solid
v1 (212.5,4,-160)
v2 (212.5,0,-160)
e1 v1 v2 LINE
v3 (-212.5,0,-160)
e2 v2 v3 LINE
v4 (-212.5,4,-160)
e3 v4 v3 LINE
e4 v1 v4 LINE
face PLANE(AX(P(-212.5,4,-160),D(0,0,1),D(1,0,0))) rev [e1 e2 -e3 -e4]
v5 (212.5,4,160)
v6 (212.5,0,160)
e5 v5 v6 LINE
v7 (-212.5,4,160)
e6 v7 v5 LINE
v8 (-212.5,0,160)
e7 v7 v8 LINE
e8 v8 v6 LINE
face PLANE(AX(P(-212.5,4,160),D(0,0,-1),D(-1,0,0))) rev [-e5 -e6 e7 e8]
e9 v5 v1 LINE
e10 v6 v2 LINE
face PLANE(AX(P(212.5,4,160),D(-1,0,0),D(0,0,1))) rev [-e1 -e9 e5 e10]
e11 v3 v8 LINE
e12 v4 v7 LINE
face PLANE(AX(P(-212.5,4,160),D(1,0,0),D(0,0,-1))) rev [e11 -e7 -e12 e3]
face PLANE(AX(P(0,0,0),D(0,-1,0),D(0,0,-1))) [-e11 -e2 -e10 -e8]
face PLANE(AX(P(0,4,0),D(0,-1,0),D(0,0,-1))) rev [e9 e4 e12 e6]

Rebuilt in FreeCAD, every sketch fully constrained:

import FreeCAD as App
import Part
import Sketcher

V = App.Vector
Q = App.Units.Quantity

doc = App.newDocument("Part")
body = doc.addObject("PartDesign::Body", "Body")

# Sketch on XZ plane
sketch1 = body.newObject("Sketcher::SketchObject", "Sketch")
sketch1.AttachmentSupport = (doc.getObject("XZ_Plane"), [""])
sketch1.MapMode = "FlatFace"
sketch1.addGeometry(Part.LineSegment(V(-212, -160, 0), V(-212, 160, 0)), False)
sketch1.addGeometry(Part.LineSegment(V(-212, 160, 0), V(212, 160, 0)), False)
sketch1.addGeometry(Part.LineSegment(V(212, 160, 0), V(212, -160, 0)), False)
sketch1.addGeometry(Part.LineSegment(V(212, -160, 0), V(-212, -160, 0)), False)
sketch1.addConstraint(Sketcher.Constraint("Coincident", 0, 2, 1, 1))
sketch1.addConstraint(Sketcher.Constraint("Coincident", 1, 2, 2, 1))
sketch1.addConstraint(Sketcher.Constraint("Coincident", 2, 2, 3, 1))
sketch1.addConstraint(Sketcher.Constraint("Coincident", 3, 2, 0, 1))
sketch1.addConstraint(Sketcher.Constraint("Vertical", 0))
sketch1.addConstraint(Sketcher.Constraint("Horizontal", 1))
sketch1.addConstraint(Sketcher.Constraint("Vertical", 2))
sketch1.addConstraint(Sketcher.Constraint("Horizontal", 3))
sketch1.addConstraint(Sketcher.Constraint("Symmetric", 0, 2, 2, 2, -1, 1))
sketch1.addConstraint(Sketcher.Constraint("DistanceX", 1, 1, 1, 2, Q("425 mm")))
sketch1.addConstraint(Sketcher.Constraint("DistanceY", 0, 1, 0, 2, Q("320 mm")))
pad1 = body.newObject("PartDesign::Pad", "Pad")
pad1.Profile = sketch1
pad1.Length = 4
pad1.Reversed = True

doc.recompute()
